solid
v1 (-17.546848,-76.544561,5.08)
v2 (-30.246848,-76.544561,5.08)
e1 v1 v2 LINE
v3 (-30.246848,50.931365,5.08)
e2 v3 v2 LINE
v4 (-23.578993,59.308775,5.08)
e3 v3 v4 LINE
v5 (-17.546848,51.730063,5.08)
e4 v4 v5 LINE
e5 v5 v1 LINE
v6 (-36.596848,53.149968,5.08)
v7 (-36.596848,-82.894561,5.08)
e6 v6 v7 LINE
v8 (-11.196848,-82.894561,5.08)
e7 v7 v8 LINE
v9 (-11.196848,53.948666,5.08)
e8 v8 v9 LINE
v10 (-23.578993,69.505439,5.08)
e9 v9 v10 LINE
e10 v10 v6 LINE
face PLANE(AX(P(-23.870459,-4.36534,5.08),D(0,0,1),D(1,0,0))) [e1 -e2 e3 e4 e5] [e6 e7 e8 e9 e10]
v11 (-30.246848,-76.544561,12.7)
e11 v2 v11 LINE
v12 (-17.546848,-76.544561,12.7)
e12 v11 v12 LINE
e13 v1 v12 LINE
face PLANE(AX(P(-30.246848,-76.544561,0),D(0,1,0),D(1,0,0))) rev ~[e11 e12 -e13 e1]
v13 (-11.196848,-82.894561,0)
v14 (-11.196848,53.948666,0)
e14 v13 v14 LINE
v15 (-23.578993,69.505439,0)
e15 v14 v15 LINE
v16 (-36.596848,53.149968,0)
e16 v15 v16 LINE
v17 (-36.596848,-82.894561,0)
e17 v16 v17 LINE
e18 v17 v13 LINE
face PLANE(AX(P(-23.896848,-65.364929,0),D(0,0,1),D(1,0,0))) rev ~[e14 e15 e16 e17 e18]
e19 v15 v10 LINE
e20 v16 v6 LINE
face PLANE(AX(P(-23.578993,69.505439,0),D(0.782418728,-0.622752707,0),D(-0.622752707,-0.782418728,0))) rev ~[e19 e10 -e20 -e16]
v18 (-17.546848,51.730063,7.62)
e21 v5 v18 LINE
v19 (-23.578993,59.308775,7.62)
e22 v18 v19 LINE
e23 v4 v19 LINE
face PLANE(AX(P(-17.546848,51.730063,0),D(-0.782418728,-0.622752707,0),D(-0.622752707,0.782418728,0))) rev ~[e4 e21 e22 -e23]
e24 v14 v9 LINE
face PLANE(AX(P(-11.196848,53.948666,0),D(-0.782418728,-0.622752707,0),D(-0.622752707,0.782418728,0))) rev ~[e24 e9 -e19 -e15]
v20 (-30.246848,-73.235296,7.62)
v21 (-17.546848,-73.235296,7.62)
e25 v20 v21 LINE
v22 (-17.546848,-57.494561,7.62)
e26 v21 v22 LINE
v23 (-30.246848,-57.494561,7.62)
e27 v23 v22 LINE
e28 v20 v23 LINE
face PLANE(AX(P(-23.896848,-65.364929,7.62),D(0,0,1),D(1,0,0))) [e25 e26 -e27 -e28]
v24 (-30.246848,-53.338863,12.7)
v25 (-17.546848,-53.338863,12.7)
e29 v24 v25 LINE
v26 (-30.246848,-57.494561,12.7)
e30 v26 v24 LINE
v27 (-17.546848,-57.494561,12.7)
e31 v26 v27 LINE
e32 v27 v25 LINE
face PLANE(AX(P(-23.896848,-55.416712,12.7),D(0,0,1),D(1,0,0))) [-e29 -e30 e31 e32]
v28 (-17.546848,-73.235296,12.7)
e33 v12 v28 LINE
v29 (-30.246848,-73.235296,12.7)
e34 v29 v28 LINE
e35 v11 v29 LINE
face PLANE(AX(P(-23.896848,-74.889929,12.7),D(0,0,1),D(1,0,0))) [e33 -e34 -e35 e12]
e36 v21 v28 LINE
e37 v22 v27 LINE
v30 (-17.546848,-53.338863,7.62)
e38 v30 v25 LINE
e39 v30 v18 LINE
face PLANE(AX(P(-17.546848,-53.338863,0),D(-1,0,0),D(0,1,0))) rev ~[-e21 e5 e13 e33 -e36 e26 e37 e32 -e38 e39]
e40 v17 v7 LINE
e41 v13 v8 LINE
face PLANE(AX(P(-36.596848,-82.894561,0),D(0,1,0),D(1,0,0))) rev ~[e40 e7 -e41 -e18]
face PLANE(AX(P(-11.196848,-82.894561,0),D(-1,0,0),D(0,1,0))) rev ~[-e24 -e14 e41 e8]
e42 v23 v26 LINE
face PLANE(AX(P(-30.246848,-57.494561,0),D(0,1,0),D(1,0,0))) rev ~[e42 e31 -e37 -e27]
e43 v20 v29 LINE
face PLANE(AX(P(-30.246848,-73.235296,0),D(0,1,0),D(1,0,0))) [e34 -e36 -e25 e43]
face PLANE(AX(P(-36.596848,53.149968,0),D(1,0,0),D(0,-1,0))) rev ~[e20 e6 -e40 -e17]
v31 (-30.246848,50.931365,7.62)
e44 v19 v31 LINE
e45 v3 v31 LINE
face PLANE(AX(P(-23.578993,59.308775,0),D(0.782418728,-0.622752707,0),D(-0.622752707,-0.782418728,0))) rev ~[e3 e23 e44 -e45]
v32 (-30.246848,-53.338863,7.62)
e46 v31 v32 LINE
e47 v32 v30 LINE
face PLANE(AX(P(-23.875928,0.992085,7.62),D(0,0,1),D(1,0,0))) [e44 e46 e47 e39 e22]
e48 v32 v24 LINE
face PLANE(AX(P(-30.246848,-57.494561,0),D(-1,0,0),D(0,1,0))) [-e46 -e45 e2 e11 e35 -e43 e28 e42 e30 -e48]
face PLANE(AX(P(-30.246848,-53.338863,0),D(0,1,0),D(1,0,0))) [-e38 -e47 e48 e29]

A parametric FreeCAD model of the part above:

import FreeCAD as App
import Part
import Sketcher
from FreeCAD import Vector
Q = App.Units.Quantity

doc = App.newDocument("Part")
body = doc.addObject("PartDesign::Body", "Body")

sketch1 = body.newObject("Sketcher::SketchObject", "Sketch")
sketch1.AttachmentSupport = (doc.getObject("XY_Plane"), [""])
sketch1.MapMode = "FlatFace"
sketch1.addGeometry([
    Part.LineSegment(Vector(-36.596848, 53.149968, 0), Vector(-36.596848, -82.894561, 0)),
    Part.LineSegment(Vector(-36.596848, -82.894561, 0), Vector(-11.196848, -82.894561, 0)),
    Part.LineSegment(Vector(-11.196848, -82.894561, 0), Vector(-11.196848, 53.948666, 0)),
    Part.LineSegment(Vector(-11.196848, 53.948666, 0), Vector(-23.578993, 69.505439, 0)),
    Part.LineSegment(Vector(-23.578993, 69.505439, 0), Vector(-36.596848, 53.149968, 0)),
    Part.LineSegment(Vector(-30.246848, 50.931365, 0), Vector(-23.578993, 59.308775, 0)),
    Part.LineSegment(Vector(-23.578993, 59.308775, 0), Vector(-17.546848, 51.730063, 0)),
    Part.LineSegment(Vector(-17.546848, 51.730063, 0), Vector(-17.546848, -76.544561, 0)),
    Part.LineSegment(Vector(-17.546848, -76.544561, 0), Vector(-30.246848, -76.544561, 0)),
    Part.LineSegment(Vector(-30.246848, -76.544561, 0), Vector(-30.246848, 50.931365, 0)),
], False)
sketch1.addConstraint([
    Sketcher.Constraint("Coincident", 0, 2, 1, 1),
    Sketcher.Constraint("Coincident", 1, 2, 2, 1),
    Sketcher.Constraint("Coincident", 2, 2, 3, 1),
    Sketcher.Constraint("Coincident", 3, 2, 4, 1),
    Sketcher.Constraint("Coincident", 4, 2, 0, 1),
    Sketcher.Constraint("Coincident", 5, 2, 6, 1),
    Sketcher.Constraint("Coincident", 6, 2, 7, 1),
    Sketcher.Constraint("Coincident", 7, 2, 8, 1),
    Sketcher.Constraint("Coincident", 8, 2, 9, 1),
    Sketcher.Constraint("Coincident", 9, 2, 5, 1),
    Sketcher.Constraint("Vertical", 0),
    Sketcher.Constraint("Horizontal", 1),
    Sketcher.Constraint("Vertical", 2),
    Sketcher.Constraint("Vertical", 7),
    Sketcher.Constraint("Horizontal", 8),
    Sketcher.Constraint("Vertical", 9),
    Sketcher.Constraint("Parallel", 4, 5),
    Sketcher.Constraint("Parallel", 3, 6),
    Sketcher.Constraint("Vertical", 3, 2, 5, 2),
    Sketcher.Constraint("DistanceX", 1, 1, 1, 2, Q("1 in")),
    Sketcher.Constraint("DistanceX", 8, 2, 8, 1, Q("0.5 in")),
    Sketcher.Constraint("DistanceY", 1, 2, 3, 2, Q("6 in")),
    Sketcher.Constraint("DistanceX", 6, 2, 2, 2, Q("0.25 in")),
    Sketcher.Constraint("DistanceY", 1, 2, 7, 2, Q("0.25 in")),
    Sketcher.Constraint("DistanceY", 0, 2, 0, 1, Q("136.04453 mm")),
    Sketcher.Constraint("DistanceY", 9, 2, 2, 2, Q("3.0173 mm")),
    Sketcher.Constraint("Distance", 4, Q("20.90373 mm")),
    Sketcher.Constraint("Distance", 6, Q("9.686261 mm")),
    Sketcher.Constraint("DistanceY", 0, 2, -1, 1, Q("82.894561 mm")),
    Sketcher.Constraint("DistanceX", 0, 2, -1, 1, Q("36.596848 mm")),
])
pad1 = body.newObject("PartDesign::Pad", "Pad")
pad1.Profile = sketch1
pad1.Length = Q("0.2 in")

sketch2 = body.newObject("Sketcher::SketchObject", "Sketch001")
sketch2.AttachmentSupport = (doc.getObject("XY_Plane"), [""])
sketch2.MapMode = "FlatFace"
sketch2.addGeometry([
    Part.LineSegment(Vector(-30.246848, -57.494561, 0), Vector(-30.246848, -73.235296, 0)),
    Part.LineSegment(Vector(-30.246848, -73.235296, 0), Vector(-17.546848, -73.235296, 0)),
    Part.LineSegment(Vector(-17.546848, -73.235296, 0), Vector(-17.546848, -57.494561, 0)),
    Part.LineSegment(Vector(-17.546848, -57.494561, 0), Vector(-30.246848, -57.494561, 0)),
    Part.LineSegment(Vector(-30.246848, -53.338863, 0), Vector(-17.546848, -53.338863, 0)),
    Part.LineSegment(Vector(-17.546848, -53.338863, 0), Vector(-17.546848, 51.730063, 0)),
    Part.LineSegment(Vector(-17.546848, 51.730063, 0), Vector(-23.578993, 59.308775, 0)),
    Part.LineSegment(Vector(-23.578993, 59.308775, 0), Vector(-30.246848, 50.931365, 0)),
    Part.LineSegment(Vector(-30.246848, 50.931365, 0), Vector(-30.246848, -53.338863, 0)),
], False)
sketch2.addConstraint([
    Sketcher.Constraint("Coincident", 0, 2, 1, 1),
    Sketcher.Constraint("Coincident", 1, 2, 2, 1),
    Sketcher.Constraint("Coincident", 2, 2, 3, 1),
    Sketcher.Constraint("Coincident", 3, 2, 0, 1),
    Sketcher.Constraint("Coincident", 4, 2, 5, 1),
    Sketcher.Constraint("Coincident", 5, 2, 6, 1),
    Sketcher.Constraint("Coincident", 6, 2, 7, 1),
    Sketcher.Constraint("Coincident", 7, 2, 8, 1),
    Sketcher.Constraint("Coincident", 8, 2, 4, 1),
    Sketcher.Constraint("Vertical", 0),
    Sketcher.Constraint("Horizontal", 1),
    Sketcher.Constraint("Vertical", 2),
    Sketcher.Constraint("Horizontal", 3),
    Sketcher.Constraint("Horizontal", 4),
    Sketcher.Constraint("Vertical", 5),
    Sketcher.Constraint("Vertical", 8),
    Sketcher.Constraint("Vertical", 2, 2, 4, 2),
    Sketcher.Constraint("Vertical", 3, 2, 7, 2),
    Sketcher.Constraint("DistanceX", 1, 1, 1, 2, Q("0.5 in")),
    Sketcher.Constraint("DistanceY", 8, 2, 8, 1, Q("104.270228 mm")),
    Sketcher.Constraint("DistanceY", 2, 2, 4, 2, Q("4.155699 mm")),
    Sketcher.Constraint("Distance", 6, Q("9.686261 mm")),
    Sketcher.Constraint("DistanceY", 0, 2, 0, 1, Q("15.740734 mm")),
    Sketcher.Constraint("DistanceY", 5, 1, 5, 2, Q("105.068926 mm")),
    Sketcher.Constraint("DistanceY", 2, 2, -1, 1, Q("57.494561 mm")),
    Sketcher.Constraint("DistanceY", 1, 2, 6, 2, Q("132.54407 mm")),
    Sketcher.Constraint("DistanceX", 0, 2, -1, 1, Q("30.246848 mm")),
])
pad2 = body.newObject("PartDesign::Pad", "Pad001")
pad2.Profile = sketch2
pad2.Length = Q("0.3 in")

sketch3 = body.newObject("Sketcher::SketchObject", "Sketch002")
sketch3.AttachmentSupport = (doc.getObject("XY_Plane"), [""])
sketch3.MapMode = "FlatFace"
sketch3.addGeometry([
    Part.LineSegment(Vector(-30.246848, -53.338863, 0), Vector(-30.246848, -57.494561, 0)),
    Part.LineSegment(Vector(-30.246848, -57.494561, 0), Vector(-17.546848, -57.494561, 0)),
    Part.LineSegment(Vector(-17.546848, -57.494561, 0), Vector(-17.546848, -53.338863, 0)),
    Part.LineSegment(Vector(-17.546848, -53.338863, 0), Vector(-30.246848, -53.338863, 0)),
    Part.LineSegment(Vector(-30.246848, -73.235296, 0), Vector(-30.246848, -76.544561, 0)),
    Part.LineSegment(Vector(-30.246848, -76.544561, 0), Vector(-17.546848, -76.544561, 0)),
    Part.LineSegment(Vector(-17.546848, -76.544561, 0), Vector(-17.546848, -73.235296, 0)),
    Part.LineSegment(Vector(-17.546848, -73.235296, 0), Vector(-30.246848, -73.235296, 0)),
], False)
sketch3.addConstraint([
    Sketcher.Constraint("Coincident", 0, 2, 1, 1),
    Sketcher.Constraint("Coincident", 1, 2, 2, 1),
    Sketcher.Constraint("Coincident", 2, 2, 3, 1),
    Sketcher.Constraint("Coincident", 3, 2, 0, 1),
    Sketcher.Constraint("Coincident", 4, 2, 5, 1),
    Sketcher.Constraint("Coincident", 5, 2, 6, 1),
    Sketcher.Constraint("Coincident", 6, 2, 7, 1),
    Sketcher.Constraint("Coincident", 7, 2, 4, 1),
    Sketcher.Constraint("Vertical", 0),
    Sketcher.Constraint("Horizontal", 1),
    Sketcher.Constraint("Vertical", 2),
    Sketcher.Constraint("Horizontal", 3),
    Sketcher.Constraint("Vertical", 4),
    Sketcher.Constraint("Horizontal", 5),
    Sketcher.Constraint("Vertical", 6),
    Sketcher.Constraint("Horizontal", 7),
    Sketcher.Constraint("Vertical", 3, 2, 4, 2),
    Sketcher.Constraint("Vertical", 2, 2, 5, 2),
    Sketcher.Constraint("DistanceX", 1, 1, 1, 2, Q("0.5 in")),
    Sketcher.Constraint("DistanceY", 4, 2, 0, 2, Q("0.75 in")),
    Sketcher.Constraint("DistanceY", 0, 2, 0, 1, Q("4.155699 mm")),
    Sketcher.Constraint("DistanceY", 4, 2, 4, 1, Q("3.309266 mm")),
    Sketcher.Constraint("DistanceY", 0, 2, -1, 1, Q("57.494561 mm")),
    Sketcher.Constraint("DistanceX", 0, 2, -1, 1, Q("30.246848 mm")),
])
pad3 = body.newObject("PartDesign::Pad", "Pad002")
pad3.Profile = sketch3
pad3.Length = Q("0.5 in")

doc.recompute()
